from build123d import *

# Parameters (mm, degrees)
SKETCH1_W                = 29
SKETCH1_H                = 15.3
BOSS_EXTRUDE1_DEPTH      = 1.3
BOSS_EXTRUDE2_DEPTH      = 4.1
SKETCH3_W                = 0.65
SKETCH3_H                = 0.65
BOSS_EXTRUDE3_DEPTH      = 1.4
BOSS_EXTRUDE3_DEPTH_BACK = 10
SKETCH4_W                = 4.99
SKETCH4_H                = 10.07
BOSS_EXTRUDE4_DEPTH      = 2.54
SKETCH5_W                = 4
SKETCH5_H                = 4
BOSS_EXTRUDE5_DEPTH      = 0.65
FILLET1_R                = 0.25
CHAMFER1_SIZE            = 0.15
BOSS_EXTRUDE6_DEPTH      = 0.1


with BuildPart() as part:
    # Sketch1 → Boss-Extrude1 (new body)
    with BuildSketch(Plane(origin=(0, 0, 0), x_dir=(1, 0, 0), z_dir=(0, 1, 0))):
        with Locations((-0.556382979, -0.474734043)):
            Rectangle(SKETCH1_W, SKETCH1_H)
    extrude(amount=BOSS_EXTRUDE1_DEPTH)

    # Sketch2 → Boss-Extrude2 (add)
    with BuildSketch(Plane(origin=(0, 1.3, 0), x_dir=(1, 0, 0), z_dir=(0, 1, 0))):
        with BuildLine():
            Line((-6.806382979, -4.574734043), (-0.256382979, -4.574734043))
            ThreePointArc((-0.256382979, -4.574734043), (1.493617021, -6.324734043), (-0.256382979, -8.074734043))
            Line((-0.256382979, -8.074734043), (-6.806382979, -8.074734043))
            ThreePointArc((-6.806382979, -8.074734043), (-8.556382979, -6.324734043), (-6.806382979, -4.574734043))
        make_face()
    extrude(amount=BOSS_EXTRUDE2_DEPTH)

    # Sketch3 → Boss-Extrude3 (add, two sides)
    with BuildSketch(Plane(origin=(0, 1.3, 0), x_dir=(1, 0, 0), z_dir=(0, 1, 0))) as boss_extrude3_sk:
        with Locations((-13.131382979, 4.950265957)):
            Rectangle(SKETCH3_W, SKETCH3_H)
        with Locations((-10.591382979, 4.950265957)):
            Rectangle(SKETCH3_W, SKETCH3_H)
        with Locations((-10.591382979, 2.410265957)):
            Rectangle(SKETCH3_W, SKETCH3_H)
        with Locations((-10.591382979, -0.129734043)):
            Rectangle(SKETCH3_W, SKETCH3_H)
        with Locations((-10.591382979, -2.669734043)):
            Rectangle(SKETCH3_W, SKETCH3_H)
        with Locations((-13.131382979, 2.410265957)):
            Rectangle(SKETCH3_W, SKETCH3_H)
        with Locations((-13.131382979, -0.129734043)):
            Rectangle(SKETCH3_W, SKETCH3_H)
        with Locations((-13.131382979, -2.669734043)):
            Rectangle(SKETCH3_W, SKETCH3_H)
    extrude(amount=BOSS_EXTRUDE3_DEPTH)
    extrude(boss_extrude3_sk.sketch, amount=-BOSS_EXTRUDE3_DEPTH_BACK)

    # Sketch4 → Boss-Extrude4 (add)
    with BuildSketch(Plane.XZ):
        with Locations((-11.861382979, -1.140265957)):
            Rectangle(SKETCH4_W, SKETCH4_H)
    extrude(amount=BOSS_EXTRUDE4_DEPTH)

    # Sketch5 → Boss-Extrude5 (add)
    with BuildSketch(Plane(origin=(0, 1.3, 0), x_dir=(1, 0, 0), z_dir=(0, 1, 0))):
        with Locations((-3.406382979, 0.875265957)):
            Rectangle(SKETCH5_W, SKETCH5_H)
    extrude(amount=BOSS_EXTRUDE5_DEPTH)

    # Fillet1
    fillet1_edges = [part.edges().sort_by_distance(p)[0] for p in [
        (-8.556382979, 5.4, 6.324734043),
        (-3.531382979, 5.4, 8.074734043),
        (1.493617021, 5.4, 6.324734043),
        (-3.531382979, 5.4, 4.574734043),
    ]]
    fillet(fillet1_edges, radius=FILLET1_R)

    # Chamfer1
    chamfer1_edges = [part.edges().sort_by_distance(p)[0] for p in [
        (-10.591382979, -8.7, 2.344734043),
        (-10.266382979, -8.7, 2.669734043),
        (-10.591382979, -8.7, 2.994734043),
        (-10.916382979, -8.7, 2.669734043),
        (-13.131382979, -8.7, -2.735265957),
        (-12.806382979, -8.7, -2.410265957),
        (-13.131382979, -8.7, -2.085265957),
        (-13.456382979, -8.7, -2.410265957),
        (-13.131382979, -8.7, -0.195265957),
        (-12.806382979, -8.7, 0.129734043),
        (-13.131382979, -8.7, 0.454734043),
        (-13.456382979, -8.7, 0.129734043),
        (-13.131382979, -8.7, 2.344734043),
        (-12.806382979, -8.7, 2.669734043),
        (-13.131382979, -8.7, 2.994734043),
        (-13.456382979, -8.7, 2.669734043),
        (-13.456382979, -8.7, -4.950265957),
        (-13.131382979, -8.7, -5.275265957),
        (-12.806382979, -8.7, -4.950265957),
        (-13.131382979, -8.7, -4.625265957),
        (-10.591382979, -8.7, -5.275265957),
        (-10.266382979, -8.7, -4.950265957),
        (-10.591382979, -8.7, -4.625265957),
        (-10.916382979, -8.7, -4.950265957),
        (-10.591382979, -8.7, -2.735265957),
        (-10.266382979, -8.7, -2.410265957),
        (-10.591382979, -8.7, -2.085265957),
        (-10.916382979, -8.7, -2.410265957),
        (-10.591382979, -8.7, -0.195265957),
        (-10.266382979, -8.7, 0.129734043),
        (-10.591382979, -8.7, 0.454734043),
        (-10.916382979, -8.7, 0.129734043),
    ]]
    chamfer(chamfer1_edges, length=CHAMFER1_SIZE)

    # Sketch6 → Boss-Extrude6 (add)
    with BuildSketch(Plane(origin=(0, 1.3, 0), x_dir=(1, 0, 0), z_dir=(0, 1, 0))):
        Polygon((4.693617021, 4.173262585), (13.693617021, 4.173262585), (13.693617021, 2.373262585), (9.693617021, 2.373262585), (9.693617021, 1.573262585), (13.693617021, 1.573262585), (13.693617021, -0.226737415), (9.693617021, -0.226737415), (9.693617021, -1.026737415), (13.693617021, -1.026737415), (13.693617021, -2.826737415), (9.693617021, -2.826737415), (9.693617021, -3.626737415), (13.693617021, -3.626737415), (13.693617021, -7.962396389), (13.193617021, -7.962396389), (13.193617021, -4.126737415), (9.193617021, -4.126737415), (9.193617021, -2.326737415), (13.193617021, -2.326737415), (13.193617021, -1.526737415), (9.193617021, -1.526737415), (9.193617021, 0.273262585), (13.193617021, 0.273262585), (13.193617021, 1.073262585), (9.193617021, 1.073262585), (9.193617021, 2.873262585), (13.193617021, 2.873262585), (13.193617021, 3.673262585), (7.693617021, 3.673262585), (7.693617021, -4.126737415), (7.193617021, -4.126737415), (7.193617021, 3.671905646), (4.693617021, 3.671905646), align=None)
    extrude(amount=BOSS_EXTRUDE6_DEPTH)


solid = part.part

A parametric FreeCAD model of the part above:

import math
import FreeCAD as App
import Part
import Sketcher

V = App.Vector
Q = App.Units.Quantity


def edges_at(feature, points):
    """Names of the edges that pass closest to the given points."""
    edges = feature.Shape.Edges
    near = lambda p: min(range(len(edges)), key=lambda i: edges[i].distToShape(Part.Vertex(*p))[0])
    return sorted({f"Edge{near(p) + 1}" for p in points})


def add_polygon(sketch, points):
    """Adds a closed chain of lines whose ends are joined by coincident constraints."""
    first, n = sketch.GeometryCount, len(points)
    for a, b in zip(points, points[1:] + points[:1]):
        sketch.addGeometry(Part.LineSegment(App.Vector(*a, 0), App.Vector(*b, 0)), False)
    for i in range(n):
        sketch.addConstraint(Sketcher.Constraint("Coincident", first + i, 2, first + (i + 1) % n, 1))

doc = App.newDocument("Part")
body = doc.addObject("PartDesign::Body", "Body")

# Sketch on XZ plane
sketch1 = body.newObject("Sketcher::SketchObject", "Sketch")
sketch1.AttachmentSupport = (doc.getObject("XZ_Plane"), [""])
sketch1.MapMode = "FlatFace"
add_polygon(sketch1, [(-15, -7), (-15, 8), (14, 8), (14, -7)])  # lines 0-3
sketch1.addConstraint(Sketcher.Constraint("Vertical", 0))
sketch1.addConstraint(Sketcher.Constraint("Horizontal", 1))
sketch1.addConstraint(Sketcher.Constraint("Vertical", 2))
sketch1.addConstraint(Sketcher.Constraint("Horizontal", 3))
sketch1.addConstraint(Sketcher.Constraint("DistanceX", 1, 1, 1, 2, Q("29 mm")))
sketch1.addConstraint(Sketcher.Constraint("DistanceY", 0, 1, 0, 2, Q("15.3 mm")))
sketch1.addConstraint(Sketcher.Constraint("DistanceX", 0, 2, -1, 1, Q("15.056383 mm")))
sketch1.addConstraint(Sketcher.Constraint("DistanceY", -1, 1, 0, 2, Q("8.124734 mm")))
pad1 = body.newObject("PartDesign::Pad", "Pad")
pad1.Profile = sketch1
pad1.Length = 1.3
pad1.Reversed = True

# Sketch on XZ plane
sketch2 = body.newObject("Sketcher::SketchObject", "Sketch001")
sketch2.AttachmentSupport = (doc.getObject("XZ_Plane"), [""])
sketch2.MapMode = "FlatFace"
sketch2.AttachmentOffset = App.Placement(V(0, 0, -1.3), App.Rotation())
sketch2.addGeometry(Part.LineSegment(V(-0.3, 4.6, 0), V(-6.8, 4.6, 0)), False)
sketch2.addGeometry(Part.ArcOfCircle(Part.Circle(V(-6.8, 6.3, 0), V(0, 0, 1), 1.8), math.radians(90), math.radians(270)), False)
sketch2.addGeometry(Part.LineSegment(V(-6.8, 8.1, 0), V(-0.3, 8.1, 0)), False)
sketch2.addGeometry(Part.ArcOfCircle(Part.Circle(V(-0.3, 6.3, 0), V(0, 0, 1), 1.8), math.radians(-90), math.radians(90)), False)
sketch2.addConstraint(Sketcher.Constraint("Tangent", 0, 2, 1, 2))
sketch2.addConstraint(Sketcher.Constraint("Tangent", 1, 1, 2, 1))
sketch2.addConstraint(Sketcher.Constraint("Tangent", 2, 2, 3, 2))
sketch2.addConstraint(Sketcher.Constraint("Tangent", 3, 1, 0, 1))
sketch2.addConstraint(Sketcher.Constraint("Horizontal", 0))
sketch2.addConstraint(Sketcher.Constraint("Horizontal", 2))
sketch2.addConstraint(Sketcher.Constraint("Radius", 1, Q("1.75 mm")))
sketch2.addConstraint(Sketcher.Constraint("DistanceX", 0, 2, 0, 1, Q("6.55 mm")))
sketch2.addConstraint(Sketcher.Constraint("DistanceX", 1, 3, -1, 1, Q("6.806383 mm")))
sketch2.addConstraint(Sketcher.Constraint("DistanceY", -1, 1, 1, 3, Q("6.324734 mm")))
pad2 = body.newObject("PartDesign::Pad", "Pad001")
pad2.Profile = sketch2
pad2.Length = 4.1
pad2.Reversed = True

# Sketch on XZ plane
sketch3 = body.newObject("Sketcher::SketchObject", "Sketch002")
sketch3.AttachmentSupport = (doc.getObject("XZ_Plane"), [""])
sketch3.MapMode = "FlatFace"
sketch3.AttachmentOffset = App.Placement(V(0, 0, -1.3), App.Rotation())
add_polygon(sketch3, [(-13.5, -5.3), (-13.5, -4.6), (-12.8, -4.6), (-12.8, -5.3)])  # lines 0-3
add_polygon(sketch3, [(-10.9, -5.3), (-10.9, -4.6), (-10.3, -4.6), (-10.3, -5.3)])  # lines 4-7
add_polygon(sketch3, [(-10.9, -2.7), (-10.9, -2.1), (-10.3, -2.1), (-10.3, -2.7)])  # lines 8-11
add_polygon(sketch3, [(-10.9, -0.2), (-10.9, 0.5), (-10.3, 0.5), (-10.3, -0.2)])  # lines 12-15
add_polygon(sketch3, [(-10.9, 2.3), (-10.9, 3), (-10.3, 3), (-10.3, 2.3)])  # lines 16-19
add_polygon(sketch3, [(-13.5, -2.7), (-13.5, -2.1), (-12.8, -2.1), (-12.8, -2.7)])  # lines 20-23
add_polygon(sketch3, [(-13.5, -0.2), (-13.5, 0.5), (-12.8, 0.5), (-12.8, -0.2)])  # lines 24-27
add_polygon(sketch3, [(-13.5, 2.3), (-13.5, 3), (-12.8, 3), (-12.8, 2.3)])  # lines 28-31
sketch3.addConstraint(Sketcher.Constraint("Vertical", 0))
sketch3.addConstraint(Sketcher.Constraint("Horizontal", 1))
sketch3.addConstraint(Sketcher.Constraint("Vertical", 2))
sketch3.addConstraint(Sketcher.Constraint("Horizontal", 3))
sketch3.addConstraint(Sketcher.Constraint("Vertical", 4))
sketch3.addConstraint(Sketcher.Constraint("Horizontal", 5))
sketch3.addConstraint(Sketcher.Constraint("Vertical", 6))
sketch3.addConstraint(Sketcher.Constraint("Horizontal", 7))
sketch3.addConstraint(Sketcher.Constraint("Vertical", 8))
sketch3.addConstraint(Sketcher.Constraint("Horizontal", 9))
sketch3.addConstraint(Sketcher.Constraint("Vertical", 10))
sketch3.addConstraint(Sketcher.Constraint("Horizontal", 11))
sketch3.addConstraint(Sketcher.Constraint("Vertical", 12))
sketch3.addConstraint(Sketcher.Constraint("Horizontal", 13))
sketch3.addConstraint(Sketcher.Constraint("Vertical", 14))
sketch3.addConstraint(Sketcher.Constraint("Horizontal", 15))
sketch3.addConstraint(Sketcher.Constraint("Vertical", 16))
sketch3.addConstraint(Sketcher.Constraint("Horizontal", 17))
sketch3.addConstraint(Sketcher.Constraint("Vertical", 18))
sketch3.addConstraint(Sketcher.Constraint("Horizontal", 19))
sketch3.addConstraint(Sketcher.Constraint("Vertical", 20))
sketch3.addConstraint(Sketcher.Constraint("Horizontal", 21))
sketch3.addConstraint(Sketcher.Constraint("Vertical", 22))
sketch3.addConstraint(Sketcher.Constraint("Horizontal", 23))
sketch3.addConstraint(Sketcher.Constraint("Vertical", 24))
sketch3.addConstraint(Sketcher.Constraint("Horizontal", 25))
sketch3.addConstraint(Sketcher.Constraint("Vertical", 26))
sketch3.addConstraint(Sketcher.Constraint("Horizontal", 27))
sketch3.addConstraint(Sketcher.Constraint("Vertical", 28))
sketch3.addConstraint(Sketcher.Constraint("Horizontal", 29))
sketch3.addConstraint(Sketcher.Constraint("Vertical", 30))
sketch3.addConstraint(Sketcher.Constraint("Horizontal", 31))
sketch3.addConstraint(Sketcher.Constraint("Horizontal", 1, 2, 4, 2))
sketch3.addConstraint(Sketcher.Constraint("Horizontal", 3, 2, 6, 2))
sketch3.addConstraint(Sketcher.Constraint("Horizontal", 9, 2, 20, 2))
sketch3.addConstraint(Sketcher.Constraint("Horizontal", 11, 2, 22, 2))
sketch3.addConstraint(Sketcher.Constraint("Horizontal", 13, 2, 24, 2))
sketch3.addConstraint(Sketcher.Constraint("Horizontal", 15, 2, 26, 2))
sketch3.addConstraint(Sketcher.Constraint("Horizontal", 17, 2, 28, 2))
sketch3.addConstraint(Sketcher.Constraint("Horizontal", 19, 2, 30, 2))
sketch3.addConstraint(Sketcher.Constraint("Vertical", 7, 2, 8, 2))
sketch3.addConstraint(Sketcher.Constraint("Vertical", 6, 2, 9, 2))
sketch3.addConstraint(Sketcher.Constraint("Vertical", 11, 2, 12, 2))
sketch3.addConstraint(Sketcher.Constraint("Vertical", 10, 2, 13, 2))
sketch3.addConstraint(Sketcher.Constraint("Vertical", 15, 2, 16, 2))
sketch3.addConstraint(Sketcher.Constraint("Vertical", 14, 2, 17, 2))
sketch3.addConstraint(Sketcher.Constraint("Vertical", 3, 2, 20, 2))
sketch3.addConstraint(Sketcher.Constraint("Vertical", 2, 2, 21, 2))
sketch3.addConstraint(Sketcher.Constraint("Vertical", 23, 2, 24, 2))
sketch3.addConstraint(Sketcher.Constraint("Vertical", 22, 2, 25, 2))
sketch3.addConstraint(Sketcher.Constraint("Vertical", 27, 2, 28, 2))
sketch3.addConstraint(Sketcher.Constraint("Vertical", 26, 2, 29, 2))
sketch3.addConstraint(Sketcher.Constraint("Equal", 3, 5))
sketch3.addConstraint(Sketcher.Constraint("Equal", 31, 0))
sketch3.addConstraint(Sketcher.Constraint("Equal", 6, 8))
sketch3.addConstraint(Sketcher.Constraint("Equal", 10, 12))
sketch3.addConstraint(Sketcher.Constraint("Equal", 14, 16))
sketch3.addConstraint(Sketcher.Constraint("DistanceX", 1, 1, 1, 2, Q("0.65 mm")))
sketch3.addConstraint(Sketcher.Constraint("DistanceX", 1, 2, 4, 2, Q("1.89 mm")))
sketch3.addConstraint(Sketcher.Constraint("DistanceY", 4, 2, 8, 2, Q("2.54 mm")))
sketch3.addConstraint(Sketcher.Constraint("DistanceY", 8, 2, 12, 2, Q("2.54 mm")))
sketch3.addConstraint(Sketcher.Constraint("DistanceY", 12, 2, 16, 2, Q("2.54 mm")))
sketch3.addConstraint(Sketcher.Constraint("DistanceX", 0, 2, -1, 1, Q("13.456383 mm")))
sketch3.addConstraint(Sketcher.Constraint("DistanceY", 0, 2, -1, 1, Q("4.625266 mm")))
pad3 = body.newObject("PartDesign::Pad", "Pad002")
pad3.Profile = sketch3
pad3.Type = "TwoLengths"
pad3.Length = 1.4
pad3.Length2 = 10
pad3.Reversed = True

# Sketch on XZ plane
sketch4 = body.newObject("Sketcher::SketchObject", "Sketch003")
sketch4.AttachmentSupport = (doc.getObject("XZ_Plane"), [""])
sketch4.MapMode = "FlatFace"
add_polygon(sketch4, [(-14.4, 3.9), (-14.4, -6.2), (-9.4, -6.2), (-9.4, 3.9)])  # lines 0-3
sketch4.addConstraint(Sketcher.Constraint("Vertical", 0))
sketch4.addConstraint(Sketcher.Constraint("Horizontal", 1))
sketch4.addConstraint(Sketcher.Constraint("Vertical", 2))
sketch4.addConstraint(Sketcher.Constraint("Horizontal", 3))
sketch4.addConstraint(Sketcher.Constraint("DistanceX", 1, 1, 1, 2, Q("4.99 mm")))
sketch4.addConstraint(Sketcher.Constraint("DistanceY", 0, 2, 0, 1, Q("10.07 mm")))
sketch4.addConstraint(Sketcher.Constraint("DistanceX", 0, 2, -1, 1, Q("14.356383 mm")))
sketch4.addConstraint(Sketcher.Constraint("DistanceY", 0, 2, -1, 1, Q("6.175266 mm")))
pad4 = body.newObject("PartDesign::Pad", "Pad003")
pad4.Profile = sketch4
pad4.Length = 2.54

# Sketch on XZ plane
sketch5 = body.newObject("Sketcher::SketchObject", "Sketch004")
sketch5.AttachmentSupport = (doc.getObject("XZ_Plane"), [""])
sketch5.MapMode = "FlatFace"
sketch5.AttachmentOffset = App.Placement(V(0, 0, -1.3), App.Rotation())
add_polygon(sketch5, [(-5.4, -2.9), (-5.4, 1.1), (-1.4, 1.1), (-1.4, -2.9)])  # lines 0-3
sketch5.addConstraint(Sketcher.Constraint("Vertical", 0))
sketch5.addConstraint(Sketcher.Constraint("Horizontal", 1))
sketch5.addConstraint(Sketcher.Constraint("Vertical", 2))
sketch5.addConstraint(Sketcher.Constraint("Horizontal", 3))
sketch5.addConstraint(Sketcher.Constraint("Equal", 3, 0))
sketch5.addConstraint(Sketcher.Constraint("DistanceX", 1, 1, 1, 2, Q("4 mm")))
sketch5.addConstraint(Sketcher.Constraint("DistanceX", 0, 2, -1, 1, Q("5.406383 mm")))
sketch5.addConstraint(Sketcher.Constraint("DistanceY", -1, 1, 0, 2, Q("1.124734 mm")))
pad5 = body.newObject("PartDesign::Pad", "Pad004")
pad5.Profile = sketch5
pad5.Length = 0.65
pad5.Reversed = True
doc.recompute()

fillet = body.newObject("PartDesign::Fillet", "Fillet")
fillet.Base = (pad5, edges_at(pad5, [
    (-8.556, 5.4, 6.325),
    (-3.531, 5.4, 8.075),
    (1.494, 5.4, 6.325),
    (-3.531, 5.4, 4.575),
]))
fillet.Radius = 0.25
doc.recompute()

chamfer = body.newObject("PartDesign::Chamfer", "Chamfer")
chamfer.Base = (fillet, edges_at(fillet, [
    (-10.591, -8.7, 2.345),
    (-10.266, -8.7, 2.67),
    (-10.591, -8.7, 2.995),
    (-10.916, -8.7, 2.67),
    (-13.131, -8.7, -2.735),
    (-12.806, -8.7, -2.41),
    (-13.131, -8.7, -2.085),
    (-13.456, -8.7, -2.41),
    (-13.131, -8.7, -0.195),
    (-12.806, -8.7, 0.13),
    (-13.131, -8.7, 0.455),
    (-13.456, -8.7, 0.13),
    (-13.131, -8.7, 2.345),
    (-12.806, -8.7, 2.67),
    (-13.131, -8.7, 2.995),
    (-13.456, -8.7, 2.67),
    (-13.456, -8.7, -4.95),
    (-13.131, -8.7, -5.275),
    (-12.806, -8.7, -4.95),
    (-13.131, -8.7, -4.625),
    (-10.591, -8.7, -5.275),
    (-10.266, -8.7, -4.95),
    (-10.591, -8.7, -4.625),
    (-10.916, -8.7, -4.95),
    (-10.591, -8.7, -2.735),
    (-10.266, -8.7, -2.41),
    (-10.591, -8.7, -2.085),
    (-10.916, -8.7, -2.41),
    (-10.591, -8.7, -0.195),
    (-10.266, -8.7, 0.13),
    (-10.591, -8.7, 0.455),
    (-10.916, -8.7, 0.13),
]))
chamfer.Size = 0.15

# Sketch on XZ plane
sketch6 = body.newObject("Sketcher::SketchObject", "Sketch005")
sketch6.AttachmentSupport = (doc.getObject("XZ_Plane"), [""])
sketch6.MapMode = "FlatFace"
sketch6.AttachmentOffset = App.Placement(V(0, 0, -1.3), App.Rotation())
add_polygon(sketch6, [(13.7, -4.2), (4.7, -4.2), (4.7, -3.7), (7.2, -3.7), (7.2, 4.1), (7.7, 4.1), (7.7, -3.7), (13.2, -3.7), (13.2, -2.9), (9.2, -2.9), (9.2, -1.1), (13.2, -1.1), (13.2, -0.3), (9.2, -0.3), (9.2, 1.5), (13.2, 1.5), (13.2, 2.3), (9.2, 2.3), (9.2, 4.1), (13.2, 4.1), (13.2, 8), (13.7, 8), (13.7, 3.6), (9.7, 3.6), (9.7, 2.8), (13.7, 2.8), (13.7, 1), (9.7, 1), (9.7, 0.2), (13.7, 0.2), (13.7, -1.6), (9.7, -1.6), (9.7, -2.4), (13.7, -2.4)])  # lines 0-33
sketch6.addConstraint(Sketcher.Constraint("Horizontal", 0))
sketch6.addConstraint(Sketcher.Constraint("Vertical", 1))
sketch6.addConstraint(Sketcher.Constraint("Horizontal", 2))
sketch6.addConstraint(Sketcher.Constraint("Vertical", 3))
sketch6.addConstraint(Sketcher.Constraint("Horizontal", 4))
sketch6.addConstraint(Sketcher.Constraint("Vertical", 5))
sketch6.addConstraint(Sketcher.Constraint("Horizontal", 6))
sketch6.addConstraint(Sketcher.Constraint("Vertical", 7))
sketch6.addConstraint(Sketcher.Constraint("Horizontal", 8))
sketch6.addConstraint(Sketcher.Constraint("Vertical", 9))
sketch6.addConstraint(Sketcher.Constraint("Horizontal", 10))
sketch6.addConstraint(Sketcher.Constraint("Vertical", 11))
sketch6.addConstraint(Sketcher.Constraint("Horizontal", 12))
sketch6.addConstraint(Sketcher.Constraint("Vertical", 13))
sketch6.addConstraint(Sketcher.Constraint("Horizontal", 14))
sketch6.addConstraint(Sketcher.Constraint("Vertical", 15))
sketch6.addConstraint(Sketcher.Constraint("Horizontal", 16))
sketch6.addConstraint(Sketcher.Constraint("Vertical", 17))
sketch6.addConstraint(Sketcher.Constraint("Horizontal", 18))
sketch6.addConstraint(Sketcher.Constraint("Vertical", 19))
sketch6.addConstraint(Sketcher.Constraint("Horizontal", 20))
sketch6.addConstraint(Sketcher.Constraint("Vertical", 21))
sketch6.addConstraint(Sketcher.Constraint("Horizontal", 22))
sketch6.addConstraint(Sketcher.Constraint("Vertical", 23))
sketch6.addConstraint(Sketcher.Constraint("Horizontal", 24))
sketch6.addConstraint(Sketcher.Constraint("Vertical", 25))
sketch6.addConstraint(Sketcher.Constraint("Horizontal", 26))
sketch6.addConstraint(Sketcher.Constraint("Vertical", 27))
sketch6.addConstraint(Sketcher.Constraint("Horizontal", 28))
sketch6.addConstraint(Sketcher.Constraint("Vertical", 29))
sketch6.addConstraint(Sketcher.Constraint("Horizontal", 30))
sketch6.addConstraint(Sketcher.Constraint("Vertical", 31))
sketch6.addConstraint(Sketcher.Constraint("Horizontal", 32))
sketch6.addConstraint(Sketcher.Constraint("Vertical", 33))
sketch6.addConstraint(Sketcher.Constraint("Horizontal", 4, 2, 17, 2))
sketch6.addConstraint(Sketcher.Constraint("Vertical", 7, 2, 10, 2))
sketch6.addConstraint(Sketcher.Constraint("Vertical", 9, 2, 12, 2))
sketch6.addConstraint(Sketcher.Constraint("Vertical", 11, 2, 14, 2))
sketch6.addConstraint(Sketcher.Constraint("Vertical", 13, 2, 16, 2))
sketch6.addConstraint(Sketcher.Constraint("Vertical", 15, 2, 18, 2))
sketch6.addConstraint(Sketcher.Constraint("Vertical", 21, 2, 24, 2))
sketch6.addConstraint(Sketcher.Constraint("Vertical", 23, 2, 26, 2))
sketch6.addConstraint(Sketcher.Constraint("Vertical", 25, 2, 28, 2))
sketch6.addConstraint(Sketcher.Constraint("Vertical", 27, 2, 30, 2))
sketch6.addConstraint(Sketcher.Constraint("Vertical", 29, 2, 32, 2))
sketch6.addConstraint(Sketcher.Constraint("Equal", 4, 20))
sketch6.addConstraint(Sketcher.Constraint("Equal", 18, 22))
sketch6.addConstraint(Sketcher.Constraint("Equal", 7, 11))
sketch6.addConstraint(Sketcher.Constraint("Equal", 9, 13))
sketch6.addConstraint(Sketcher.Constraint("Equal", 11, 15))
sketch6.addConstraint(Sketcher.Constraint("Equal", 13, 17))
sketch6.addConstraint(Sketcher.Constraint("Equal", 15, 23))
sketch6.addConstraint(Sketcher.Constraint("Equal", 17, 25))
sketch6.addConstraint(Sketcher.Constraint("Equal", 23, 27))
sketch6.addConstraint(Sketcher.Constraint("Equal", 25, 29))
sketch6.addConstraint(Sketcher.Constraint("Equal", 27, 31))
sketch6.addConstraint(Sketcher.Constraint("Equal", 29, 33))
sketch6.addConstraint(Sketcher.Constraint("DistanceX", 0, 2, 0, 1, Q("9 mm")))
sketch6.addConstraint(Sketcher.Constraint("DistanceX", 8, 2, 8, 1, Q("4 mm")))
sketch6.addConstraint(Sketcher.Constraint("DistanceX", 2, 1, 2, 2, Q("2.5 mm")))
sketch6.addConstraint(Sketcher.Constraint("DistanceX", 4, 1, 4, 2, Q("0.5 mm")))
sketch6.addConstraint(Sketcher.Constraint("DistanceY", 5, 2, 5, 1, Q("7.8 mm")))
sketch6.addConstraint(Sketcher.Constraint("DistanceY", 7, 1, 7, 2, Q("0.8 mm")))
sketch6.addConstraint(Sketcher.Constraint("DistanceY", 0, 2, 3, 2, Q("8.3 mm")))
sketch6.addConstraint(Sketcher.Constraint("DistanceY", 19, 1, 19, 2, Q("3.835659 mm")))
sketch6.addConstraint(Sketcher.Constraint("DistanceY", 1, 1, 1, 2, Q("0.501357 mm")))
sketch6.addConstraint(Sketcher.Constraint("DistanceX", -1, 1, 0, 2, Q("4.693617 mm")))
sketch6.addConstraint(Sketcher.Constraint("DistanceY", 0, 2, -1, 1, Q("4.173263 mm")))
pad6 = body.newObject("PartDesign::Pad", "Pad005")
pad6.Profile = sketch6
pad6.Length = 0.1
pad6.Reversed = True

doc.recompute()
